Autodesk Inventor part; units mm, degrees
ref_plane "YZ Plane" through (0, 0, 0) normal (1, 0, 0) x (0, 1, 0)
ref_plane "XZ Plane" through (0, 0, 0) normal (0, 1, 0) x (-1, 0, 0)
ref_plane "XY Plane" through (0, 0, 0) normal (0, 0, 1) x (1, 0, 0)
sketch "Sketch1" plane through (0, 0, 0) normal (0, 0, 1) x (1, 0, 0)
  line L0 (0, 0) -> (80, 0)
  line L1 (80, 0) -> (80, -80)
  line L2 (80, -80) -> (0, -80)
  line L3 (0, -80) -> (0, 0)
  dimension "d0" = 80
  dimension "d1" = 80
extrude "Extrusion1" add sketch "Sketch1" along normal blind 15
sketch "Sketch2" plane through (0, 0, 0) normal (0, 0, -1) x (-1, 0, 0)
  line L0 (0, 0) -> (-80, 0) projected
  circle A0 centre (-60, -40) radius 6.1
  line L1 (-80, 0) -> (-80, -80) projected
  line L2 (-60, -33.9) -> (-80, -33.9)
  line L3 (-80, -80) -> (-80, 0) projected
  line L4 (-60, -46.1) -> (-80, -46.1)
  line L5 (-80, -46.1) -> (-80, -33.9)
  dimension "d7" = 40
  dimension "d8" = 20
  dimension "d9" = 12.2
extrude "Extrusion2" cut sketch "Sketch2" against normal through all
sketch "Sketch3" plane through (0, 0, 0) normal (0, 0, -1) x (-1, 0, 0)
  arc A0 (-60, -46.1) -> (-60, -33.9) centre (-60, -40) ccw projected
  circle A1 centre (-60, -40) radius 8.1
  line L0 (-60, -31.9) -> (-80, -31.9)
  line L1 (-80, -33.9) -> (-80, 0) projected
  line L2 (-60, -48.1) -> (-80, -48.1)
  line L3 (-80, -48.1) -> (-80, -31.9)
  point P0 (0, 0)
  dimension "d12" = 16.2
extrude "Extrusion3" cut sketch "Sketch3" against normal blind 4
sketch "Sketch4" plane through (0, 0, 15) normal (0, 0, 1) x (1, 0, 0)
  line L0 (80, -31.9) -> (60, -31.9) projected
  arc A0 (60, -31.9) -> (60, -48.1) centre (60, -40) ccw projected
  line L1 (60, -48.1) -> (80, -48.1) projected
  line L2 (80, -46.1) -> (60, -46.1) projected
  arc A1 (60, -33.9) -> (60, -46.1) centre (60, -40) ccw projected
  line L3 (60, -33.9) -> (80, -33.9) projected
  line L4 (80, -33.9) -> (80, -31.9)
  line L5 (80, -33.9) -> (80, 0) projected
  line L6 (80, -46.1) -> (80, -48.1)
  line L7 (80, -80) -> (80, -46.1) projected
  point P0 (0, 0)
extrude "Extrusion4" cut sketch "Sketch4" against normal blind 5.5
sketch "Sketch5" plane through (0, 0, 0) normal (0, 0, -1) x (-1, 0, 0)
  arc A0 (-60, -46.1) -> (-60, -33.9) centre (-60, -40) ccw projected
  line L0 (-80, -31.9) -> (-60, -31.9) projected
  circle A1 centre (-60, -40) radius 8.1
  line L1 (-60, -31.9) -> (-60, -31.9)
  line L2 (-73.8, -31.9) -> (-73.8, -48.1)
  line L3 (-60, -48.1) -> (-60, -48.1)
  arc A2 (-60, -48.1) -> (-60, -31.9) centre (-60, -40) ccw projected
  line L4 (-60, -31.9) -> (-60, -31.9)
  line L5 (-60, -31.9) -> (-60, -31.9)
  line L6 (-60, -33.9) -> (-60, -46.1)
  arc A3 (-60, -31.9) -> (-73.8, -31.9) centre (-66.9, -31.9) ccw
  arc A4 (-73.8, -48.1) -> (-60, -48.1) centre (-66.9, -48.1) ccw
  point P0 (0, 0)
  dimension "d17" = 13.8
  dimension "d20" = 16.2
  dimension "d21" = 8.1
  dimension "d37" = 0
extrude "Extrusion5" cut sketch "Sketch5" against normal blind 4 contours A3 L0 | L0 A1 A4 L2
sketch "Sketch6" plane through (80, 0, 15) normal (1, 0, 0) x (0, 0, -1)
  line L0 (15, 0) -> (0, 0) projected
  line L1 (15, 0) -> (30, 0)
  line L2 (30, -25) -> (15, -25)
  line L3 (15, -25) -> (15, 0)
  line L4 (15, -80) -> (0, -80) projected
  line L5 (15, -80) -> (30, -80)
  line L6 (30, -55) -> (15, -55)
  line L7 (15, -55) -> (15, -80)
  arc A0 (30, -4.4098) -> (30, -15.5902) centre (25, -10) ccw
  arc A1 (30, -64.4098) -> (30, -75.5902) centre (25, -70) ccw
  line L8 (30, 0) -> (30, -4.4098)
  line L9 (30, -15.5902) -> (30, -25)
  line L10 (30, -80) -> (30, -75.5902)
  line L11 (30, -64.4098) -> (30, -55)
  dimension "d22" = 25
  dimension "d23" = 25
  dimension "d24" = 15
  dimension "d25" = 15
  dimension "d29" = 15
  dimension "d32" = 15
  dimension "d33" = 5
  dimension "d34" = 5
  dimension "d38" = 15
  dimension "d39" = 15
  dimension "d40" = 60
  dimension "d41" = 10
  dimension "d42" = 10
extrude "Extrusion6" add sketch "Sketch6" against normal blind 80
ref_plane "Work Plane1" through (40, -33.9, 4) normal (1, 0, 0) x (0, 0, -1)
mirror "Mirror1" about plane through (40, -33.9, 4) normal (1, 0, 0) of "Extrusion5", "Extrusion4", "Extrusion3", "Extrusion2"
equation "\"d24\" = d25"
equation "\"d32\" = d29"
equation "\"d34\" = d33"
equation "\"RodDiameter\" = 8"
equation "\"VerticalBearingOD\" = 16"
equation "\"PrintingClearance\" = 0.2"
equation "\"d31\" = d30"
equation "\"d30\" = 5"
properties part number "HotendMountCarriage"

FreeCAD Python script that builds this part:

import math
import FreeCAD as App
import Part
import Sketcher

V = App.Vector
Q = App.Units.Quantity

doc = App.newDocument("Part")
body = doc.addObject("PartDesign::Body", "Body")

sketch1 = body.newObject("Sketcher::SketchObject", "Sketch")
sketch1.AttachmentSupport = (doc.getObject("XY_Plane"), [""])
sketch1.MapMode = "FlatFace"
sketch1.addGeometry(Part.LineSegment(V(80, 0, 0), V(0, 0, 0)), False)
sketch1.addGeometry(Part.LineSegment(V(0, 0, 0), V(0, -80, 0)), False)
sketch1.addGeometry(Part.LineSegment(V(0, -80, 0), V(80, -80, 0)), False)
sketch1.addGeometry(Part.LineSegment(V(80, -80, 0), V(80, 0, 0)), False)
sketch1.addConstraint(Sketcher.Constraint("Coincident", 0, 2, 1, 1))
sketch1.addConstraint(Sketcher.Constraint("Coincident", 1, 2, 2, 1))
sketch1.addConstraint(Sketcher.Constraint("Coincident", 2, 2, 3, 1))
sketch1.addConstraint(Sketcher.Constraint("Coincident", 3, 2, 0, 1))
sketch1.addConstraint(Sketcher.Constraint("Horizontal", 0))
sketch1.addConstraint(Sketcher.Constraint("Vertical", 1))
sketch1.addConstraint(Sketcher.Constraint("Horizontal", 2))
sketch1.addConstraint(Sketcher.Constraint("Vertical", 3))
sketch1.addConstraint(Sketcher.Constraint("Coincident", 0, 2, -1, 1))
sketch1.addConstraint(Sketcher.Constraint("Equal", 2, 1))
sketch1.addConstraint(Sketcher.Constraint("DistanceX", 0, 2, 0, 1, Q("80 mm")))
pad1 = body.newObject("PartDesign::Pad", "Pad")
pad1.Profile = sketch1
pad1.Length = 15

sketch2 = body.newObject("Sketcher::SketchObject", "Sketch001")
sketch2.AttachmentSupport = (doc.getObject("XY_Plane"), [""])
sketch2.MapMode = "FlatFace"
sketch2.addGeometry(Part.ArcOfCircle(Part.Circle(V(60, -40, 0), V(0, 0, 1), 6.1), math.radians(90), math.radians(270)), False)
sketch2.addGeometry(Part.LineSegment(V(60, -33.9, 0), V(80, -33.9, 0)), False)
sketch2.addGeometry(Part.LineSegment(V(80, -33.9, 0), V(80, -46.1, 0)), False)
sketch2.addGeometry(Part.LineSegment(V(80, -46.1, 0), V(60, -46.1, 0)), False)
sketch2.addConstraint(Sketcher.Constraint("Tangent", 0, 1, 1, 1))
sketch2.addConstraint(Sketcher.Constraint("Coincident", 1, 2, 2, 1))
sketch2.addConstraint(Sketcher.Constraint("Coincident", 2, 2, 3, 1))
sketch2.addConstraint(Sketcher.Constraint("Tangent", 3, 2, 0, 2))
sketch2.addConstraint(Sketcher.Constraint("Horizontal", 1))
sketch2.addConstraint(Sketcher.Constraint("Vertical", 2))
sketch2.addConstraint(Sketcher.Constraint("Horizontal", 3))
sketch2.addConstraint(Sketcher.Constraint("Radius", 0, Q("6.1 mm")))
sketch2.addConstraint(Sketcher.Constraint("DistanceX", 1, 1, 1, 2, Q("20 mm")))
sketch2.addConstraint(Sketcher.Constraint("DistanceY", 0, 3, -1, 1, Q("40 mm")))
sketch2.addConstraint(Sketcher.Constraint("DistanceX", -1, 1, 0, 3, Q("60 mm")))
pocket1 = body.newObject("PartDesign::Pocket", "Pocket")
pocket1.Profile = sketch2
pocket1.Type = "ThroughAll"
pocket1.Reversed = True

sketch3 = body.newObject("Sketcher::SketchObject", "Sketch002")
sketch3.AttachmentSupport = (doc.getObject("XY_Plane"), [""])
sketch3.MapMode = "FlatFace"
sketch3.addGeometry(Part.ArcOfCircle(Part.Circle(V(60, -40, 0), V(0, 0, 1), 8.1), math.radians(90), math.radians(270)), False)
sketch3.addGeometry(Part.LineSegment(V(60, -31.9, 0), V(80, -31.9, 0)), False)
sketch3.addGeometry(Part.LineSegment(V(80, -31.9, 0), V(80, -48.1, 0)), False)
sketch3.addGeometry(Part.LineSegment(V(80, -48.1, 0), V(60, -48.1, 0)), False)
sketch3.addConstraint(Sketcher.Constraint("Tangent", 0, 1, 1, 1))
sketch3.addConstraint(Sketcher.Constraint("Coincident", 1, 2, 2, 1))
sketch3.addConstraint(Sketcher.Constraint("Coincident", 2, 2, 3, 1))
sketch3.addConstraint(Sketcher.Constraint("Tangent", 3, 2, 0, 2))
sketch3.addConstraint(Sketcher.Constraint("Horizontal", 1))
sketch3.addConstraint(Sketcher.Constraint("Vertical", 2))
sketch3.addConstraint(Sketcher.Constraint("Horizontal", 3))
sketch3.addConstraint(Sketcher.Constraint("Radius", 0, Q("8.1 mm")))
sketch3.addConstraint(Sketcher.Constraint("DistanceX", 1, 1, 1, 2, Q("20 mm")))
sketch3.addConstraint(Sketcher.Constraint("DistanceX", -1, 1, 0, 3, Q("60 mm")))
sketch3.addConstraint(Sketcher.Constraint("DistanceY", 0, 3, -1, 1, Q("40 mm")))
pocket2 = body.newObject("PartDesign::Pocket", "Pocket001")
pocket2.Profile = sketch3
pocket2.Length = 4
pocket2.Reversed = True

sketch4 = body.newObject("Sketcher::SketchObject", "Sketch003")
sketch4.AttachmentSupport = (doc.getObject("XY_Plane"), [""])
sketch4.MapMode = "FlatFace"
sketch4.AttachmentOffset = App.Placement(V(0, 0, 15), App.Rotation())
sketch4.addGeometry(Part.LineSegment(V(80, -33.9, 0), V(80, -31.9, 0)), False)
sketch4.addGeometry(Part.LineSegment(V(80, -31.9, 0), V(60, -31.9, 0)), False)
sketch4.addGeometry(Part.ArcOfCircle(Part.Circle(V(60, -40, 0), V(0, 0, 1), 8.1), math.radians(90), math.radians(270)), False)
sketch4.addGeometry(Part.LineSegment(V(60, -48.1, 0), V(80, -48.1, 0)), False)
sketch4.addGeometry(Part.LineSegment(V(80, -48.1, 0), V(80, -46.1, 0)), False)
sketch4.addGeometry(Part.LineSegment(V(80, -46.1, 0), V(60, -46.1, 0)), False)
sketch4.addGeometry(Part.ArcOfCircle(Part.Circle(V(60, -40, 0), V(0, 0, 1), 6.1), math.radians(90), math.radians(270)), False)
sketch4.addGeometry(Part.LineSegment(V(60, -33.9, 0), V(80, -33.9, 0)), False)
sketch4.addConstraint(Sketcher.Constraint("Coincident", 0, 2, 1, 1))
sketch4.addConstraint(Sketcher.Constraint("Tangent", 1, 2, 2, 1))
sketch4.addConstraint(Sketcher.Constraint("Tangent", 2, 2, 3, 1))
sketch4.addConstraint(Sketcher.Constraint("Coincident", 3, 2, 4, 1))
sketch4.addConstraint(Sketcher.Constraint("Coincident", 4, 2, 5, 1))
sketch4.addConstraint(Sketcher.Constraint("Tangent", 5, 2, 6, 2))
sketch4.addConstraint(Sketcher.Constraint("Tangent", 6, 1, 7, 1))
sketch4.addConstraint(Sketcher.Constraint("Coincident", 7, 2, 0, 1))
sketch4.addConstraint(Sketcher.Constraint("Vertical", 0))
sketch4.addConstraint(Sketcher.Constraint("Horizontal", 1))
sketch4.addConstraint(Sketcher.Constraint("Horizontal", 3))
sketch4.addConstraint(Sketcher.Constraint("Vertical", 4))
sketch4.addConstraint(Sketcher.Constraint("Horizontal", 5))
sketch4.addConstraint(Sketcher.Constraint("Horizontal", 7))
sketch4.addConstraint(Sketcher.Constraint("Coincident", 6, 3, 2, 3))
sketch4.addConstraint(Sketcher.Constraint("Vertical", 0, 2, 3, 2))
sketch4.addConstraint(Sketcher.Constraint("Radius", 2, Q("8.1 mm")))
sketch4.addConstraint(Sketcher.Constraint("Radius", 6, Q("6.1 mm")))
sketch4.addConstraint(Sketcher.Constraint("DistanceX", 1, 2, 1, 1, Q("20 mm")))
sketch4.addConstraint(Sketcher.Constraint("DistanceX", -1, 1, 2, 3, Q("60 mm")))
sketch4.addConstraint(Sketcher.Constraint("DistanceY", 2, 3, -1, 1, Q("40 mm")))
pocket3 = body.newObject("PartDesign::Pocket", "Pocket002")
pocket3.Profile = sketch4
pocket3.Length = 5.5

sketch5 = body.newObject("Sketcher::SketchObject", "Sketch004")
sketch5.AttachmentSupport = (doc.getObject("XY_Plane"), [""])
sketch5.MapMode = "FlatFace"
sketch5.addGeometry(Part.ArcOfCircle(Part.Circle(V(66.9, -31.9, 0), V(0, 0, 1), 6.9), math.radians(0), math.radians(180)), False)
sketch5.addGeometry(Part.LineSegment(V(73.8, -31.9, 0), V(73.8, -48.1, 0)), False)
sketch5.addGeometry(Part.ArcOfCircle(Part.Circle(V(66.9, -48.1, 0), V(0, 0, 1), 6.9), math.radians(180), math.radians(360)), False)
sketch5.addGeometry(Part.ArcOfCircle(Part.Circle(V(60, -40, 0), V(0, 0, 1), 8.1), math.radians(-90), math.radians(90)), False)
sketch5.addConstraint(Sketcher.Constraint("Tangent", 0, 1, 1, 1))
sketch5.addConstraint(Sketcher.Constraint("Tangent", 1, 2, 2, 2))
sketch5.addConstraint(Sketcher.Constraint("Coincident", 2, 1, 3, 1))
sketch5.addConstraint(Sketcher.Constraint("Coincident", 3, 2, 0, 2))
sketch5.addConstraint(Sketcher.Constraint("Vertical", 1))
sketch5.addConstraint(Sketcher.Constraint("Equal", 0, 2))
sketch5.addConstraint(Sketcher.Constraint("Horizontal", 1, 2, 2, 1))
sketch5.addConstraint(Sketcher.Constraint("Horizontal", 0, 1, 3, 2))
sketch5.addConstraint(Sketcher.Constraint("Vertical", 3, 3, 2, 1))
sketch5.addConstraint(Sketcher.Constraint("Radius", 0, Q("6.9 mm")))
sketch5.addConstraint(Sketcher.Constraint("Radius", 3, Q("8.1 mm")))
sketch5.addConstraint(Sketcher.Constraint("DistanceX", -1, 1, 3, 3, Q("60 mm")))
sketch5.addConstraint(Sketcher.Constraint("DistanceY", 3, 3, -1, 1, Q("40 mm")))
pocket4 = body.newObject("PartDesign::Pocket", "Pocket003")
pocket4.Profile = sketch5
pocket4.Length = 4
pocket4.Reversed = True

sketch6 = body.newObject("Sketcher::SketchObject", "Sketch005")
sketch6.AttachmentSupport = (doc.getObject("YZ_Plane"), [""])
sketch6.MapMode = "FlatFace"
sketch6.AttachmentOffset = App.Placement(V(0, 0, 80), App.Rotation())
sketch6.addGeometry(Part.LineSegment(V(0, -15, 0), V(0, 0, 0)), False)
sketch6.addGeometry(Part.LineSegment(V(0, 0, 0), V(-25, 0, 0)), False)
sketch6.addGeometry(Part.LineSegment(V(-25, 0, 0), V(-25, -15, 0)), False)
sketch6.addGeometry(Part.LineSegment(V(-25, -15, 0), V(-15.5902, -15, 0)), False)
sketch6.addGeometry(Part.ArcOfCircle(Part.Circle(V(-10, -10, 0), V(0, 0, 1), 7.500022), math.radians(-41.810162), math.radians(221.810162)), False)
sketch6.addGeometry(Part.LineSegment(V(-4.4098, -15, 0), V(0, -15, 0)), False)
sketch6.addGeometry(Part.LineSegment(V(-55, 0, 0), V(-80, 0, 0)), False)
sketch6.addGeometry(Part.LineSegment(V(-80, 0, 0), V(-80, -15, 0)), False)
sketch6.addGeometry(Part.LineSegment(V(-80, -15, 0), V(-75.5902, -15, 0)), False)
sketch6.addGeometry(Part.ArcOfCircle(Part.Circle(V(-70, -10, 0), V(0, 0, 1), 7.500022), math.radians(-41.810162), math.radians(221.810162)), False)
sketch6.addGeometry(Part.LineSegment(V(-64.4098, -15, 0), V(-55, -15, 0)), False)
sketch6.addGeometry(Part.LineSegment(V(-55, -15, 0), V(-55, 0, 0)), False)
sketch6.addConstraint(Sketcher.Constraint("Coincident", 0, 2, 1, 1))
sketch6.addConstraint(Sketcher.Constraint("Coincident", 1, 2, 2, 1))
sketch6.addConstraint(Sketcher.Constraint("Coincident", 2, 2, 3, 1))
sketch6.addConstraint(Sketcher.Constraint("Coincident", 3, 2, 4, 2))
sketch6.addConstraint(Sketcher.Constraint("Coincident", 4, 1, 5, 1))
sketch6.addConstraint(Sketcher.Constraint("Coincident", 5, 2, 0, 1))
sketch6.addConstraint(Sketcher.Constraint("Coincident", 6, 2, 7, 1))
sketch6.addConstraint(Sketcher.Constraint("Coincident", 7, 2, 8, 1))
sketch6.addConstraint(Sketcher.Constraint("Coincident", 8, 2, 9, 2))
sketch6.addConstraint(Sketcher.Constraint("Coincident", 9, 1, 10, 1))
sketch6.addConstraint(Sketcher.Constraint("Coincident", 10, 2, 11, 1))
sketch6.addConstraint(Sketcher.Constraint("Coincident", 11, 2, 6, 1))
sketch6.addConstraint(Sketcher.Constraint("Vertical", 0))
sketch6.addConstraint(Sketcher.Constraint("Horizontal", 1))
sketch6.addConstraint(Sketcher.Constraint("Vertical", 2))
sketch6.addConstraint(Sketcher.Constraint("Horizontal", 3))
sketch6.addConstraint(Sketcher.Constraint("Horizontal", 5))
sketch6.addConstraint(Sketcher.Constraint("Horizontal", 6))
sketch6.addConstraint(Sketcher.Constraint("Vertical", 7))
sketch6.addConstraint(Sketcher.Constraint("Horizontal", 8))
sketch6.addConstraint(Sketcher.Constraint("Horizontal", 10))
sketch6.addConstraint(Sketcher.Constraint("Vertical", 11))
sketch6.addConstraint(Sketcher.Constraint("Coincident", 0, 2, -1, 1))
sketch6.addConstraint(Sketcher.Constraint("Equal", 4, 9))
sketch6.addConstraint(Sketcher.Constraint("PointOnObject", 6, 2, -1))
sketch6.addConstraint(Sketcher.Constraint("Horizontal", 4, 3, 9, 3))
sketch6.addConstraint(Sketcher.Constraint("Horizontal", 3, 2, 4, 1))
sketch6.addConstraint(Sketcher.Constraint("Horizontal", 5, 2, 7, 2))
sketch6.addConstraint(Sketcher.Constraint("Horizontal", 8, 2, 9, 1))
sketch6.addConstraint(Sketcher.Constraint("Equal", 1, 6))
sketch6.addConstraint(Sketcher.Constraint("Equal", 5, 8))
sketch6.addConstraint(Sketcher.Constraint("Radius", 4, Q("7.5 mm")))
sketch6.addConstraint(Sketcher.Constraint("DistanceX", 1, 2, 1, 1, Q("25 mm")))
sketch6.addConstraint(Sketcher.Constraint("DistanceY", 0, 1, 0, 2, Q("15 mm")))
sketch6.addConstraint(Sketcher.Constraint("DistanceX", 4, 3, -1, 1, Q("10 mm")))
sketch6.addConstraint(Sketcher.Constraint("DistanceY", 4, 3, -1, 1, Q("10 mm")))
sketch6.addConstraint(Sketcher.Constraint("DistanceX", 9, 3, 4, 3, Q("60 mm")))
pad2 = body.newObject("PartDesign::Pad", "Pad001")
pad2.Profile = sketch6
pad2.Length = 80
pad2.Reversed = True
doc.recompute()

datumplane = body.newObject("PartDesign::Plane", "DatumPlane")
datumplane.AttachmentSupport = (doc.getObject("YZ_Plane"), [""])
datumplane.MapMode = "FlatFace"
datumplane.AttachmentOffset = App.Placement(V(0, 0, 40), App.Rotation())
mirrored = body.newObject("PartDesign::Mirrored", "Mirrored")
mirrored.Originals = [pocket4, pocket3, pocket2, pocket1]
mirrored.MirrorPlane = (datumplane, [""])
body.Tip = mirrored

doc.recompute()
